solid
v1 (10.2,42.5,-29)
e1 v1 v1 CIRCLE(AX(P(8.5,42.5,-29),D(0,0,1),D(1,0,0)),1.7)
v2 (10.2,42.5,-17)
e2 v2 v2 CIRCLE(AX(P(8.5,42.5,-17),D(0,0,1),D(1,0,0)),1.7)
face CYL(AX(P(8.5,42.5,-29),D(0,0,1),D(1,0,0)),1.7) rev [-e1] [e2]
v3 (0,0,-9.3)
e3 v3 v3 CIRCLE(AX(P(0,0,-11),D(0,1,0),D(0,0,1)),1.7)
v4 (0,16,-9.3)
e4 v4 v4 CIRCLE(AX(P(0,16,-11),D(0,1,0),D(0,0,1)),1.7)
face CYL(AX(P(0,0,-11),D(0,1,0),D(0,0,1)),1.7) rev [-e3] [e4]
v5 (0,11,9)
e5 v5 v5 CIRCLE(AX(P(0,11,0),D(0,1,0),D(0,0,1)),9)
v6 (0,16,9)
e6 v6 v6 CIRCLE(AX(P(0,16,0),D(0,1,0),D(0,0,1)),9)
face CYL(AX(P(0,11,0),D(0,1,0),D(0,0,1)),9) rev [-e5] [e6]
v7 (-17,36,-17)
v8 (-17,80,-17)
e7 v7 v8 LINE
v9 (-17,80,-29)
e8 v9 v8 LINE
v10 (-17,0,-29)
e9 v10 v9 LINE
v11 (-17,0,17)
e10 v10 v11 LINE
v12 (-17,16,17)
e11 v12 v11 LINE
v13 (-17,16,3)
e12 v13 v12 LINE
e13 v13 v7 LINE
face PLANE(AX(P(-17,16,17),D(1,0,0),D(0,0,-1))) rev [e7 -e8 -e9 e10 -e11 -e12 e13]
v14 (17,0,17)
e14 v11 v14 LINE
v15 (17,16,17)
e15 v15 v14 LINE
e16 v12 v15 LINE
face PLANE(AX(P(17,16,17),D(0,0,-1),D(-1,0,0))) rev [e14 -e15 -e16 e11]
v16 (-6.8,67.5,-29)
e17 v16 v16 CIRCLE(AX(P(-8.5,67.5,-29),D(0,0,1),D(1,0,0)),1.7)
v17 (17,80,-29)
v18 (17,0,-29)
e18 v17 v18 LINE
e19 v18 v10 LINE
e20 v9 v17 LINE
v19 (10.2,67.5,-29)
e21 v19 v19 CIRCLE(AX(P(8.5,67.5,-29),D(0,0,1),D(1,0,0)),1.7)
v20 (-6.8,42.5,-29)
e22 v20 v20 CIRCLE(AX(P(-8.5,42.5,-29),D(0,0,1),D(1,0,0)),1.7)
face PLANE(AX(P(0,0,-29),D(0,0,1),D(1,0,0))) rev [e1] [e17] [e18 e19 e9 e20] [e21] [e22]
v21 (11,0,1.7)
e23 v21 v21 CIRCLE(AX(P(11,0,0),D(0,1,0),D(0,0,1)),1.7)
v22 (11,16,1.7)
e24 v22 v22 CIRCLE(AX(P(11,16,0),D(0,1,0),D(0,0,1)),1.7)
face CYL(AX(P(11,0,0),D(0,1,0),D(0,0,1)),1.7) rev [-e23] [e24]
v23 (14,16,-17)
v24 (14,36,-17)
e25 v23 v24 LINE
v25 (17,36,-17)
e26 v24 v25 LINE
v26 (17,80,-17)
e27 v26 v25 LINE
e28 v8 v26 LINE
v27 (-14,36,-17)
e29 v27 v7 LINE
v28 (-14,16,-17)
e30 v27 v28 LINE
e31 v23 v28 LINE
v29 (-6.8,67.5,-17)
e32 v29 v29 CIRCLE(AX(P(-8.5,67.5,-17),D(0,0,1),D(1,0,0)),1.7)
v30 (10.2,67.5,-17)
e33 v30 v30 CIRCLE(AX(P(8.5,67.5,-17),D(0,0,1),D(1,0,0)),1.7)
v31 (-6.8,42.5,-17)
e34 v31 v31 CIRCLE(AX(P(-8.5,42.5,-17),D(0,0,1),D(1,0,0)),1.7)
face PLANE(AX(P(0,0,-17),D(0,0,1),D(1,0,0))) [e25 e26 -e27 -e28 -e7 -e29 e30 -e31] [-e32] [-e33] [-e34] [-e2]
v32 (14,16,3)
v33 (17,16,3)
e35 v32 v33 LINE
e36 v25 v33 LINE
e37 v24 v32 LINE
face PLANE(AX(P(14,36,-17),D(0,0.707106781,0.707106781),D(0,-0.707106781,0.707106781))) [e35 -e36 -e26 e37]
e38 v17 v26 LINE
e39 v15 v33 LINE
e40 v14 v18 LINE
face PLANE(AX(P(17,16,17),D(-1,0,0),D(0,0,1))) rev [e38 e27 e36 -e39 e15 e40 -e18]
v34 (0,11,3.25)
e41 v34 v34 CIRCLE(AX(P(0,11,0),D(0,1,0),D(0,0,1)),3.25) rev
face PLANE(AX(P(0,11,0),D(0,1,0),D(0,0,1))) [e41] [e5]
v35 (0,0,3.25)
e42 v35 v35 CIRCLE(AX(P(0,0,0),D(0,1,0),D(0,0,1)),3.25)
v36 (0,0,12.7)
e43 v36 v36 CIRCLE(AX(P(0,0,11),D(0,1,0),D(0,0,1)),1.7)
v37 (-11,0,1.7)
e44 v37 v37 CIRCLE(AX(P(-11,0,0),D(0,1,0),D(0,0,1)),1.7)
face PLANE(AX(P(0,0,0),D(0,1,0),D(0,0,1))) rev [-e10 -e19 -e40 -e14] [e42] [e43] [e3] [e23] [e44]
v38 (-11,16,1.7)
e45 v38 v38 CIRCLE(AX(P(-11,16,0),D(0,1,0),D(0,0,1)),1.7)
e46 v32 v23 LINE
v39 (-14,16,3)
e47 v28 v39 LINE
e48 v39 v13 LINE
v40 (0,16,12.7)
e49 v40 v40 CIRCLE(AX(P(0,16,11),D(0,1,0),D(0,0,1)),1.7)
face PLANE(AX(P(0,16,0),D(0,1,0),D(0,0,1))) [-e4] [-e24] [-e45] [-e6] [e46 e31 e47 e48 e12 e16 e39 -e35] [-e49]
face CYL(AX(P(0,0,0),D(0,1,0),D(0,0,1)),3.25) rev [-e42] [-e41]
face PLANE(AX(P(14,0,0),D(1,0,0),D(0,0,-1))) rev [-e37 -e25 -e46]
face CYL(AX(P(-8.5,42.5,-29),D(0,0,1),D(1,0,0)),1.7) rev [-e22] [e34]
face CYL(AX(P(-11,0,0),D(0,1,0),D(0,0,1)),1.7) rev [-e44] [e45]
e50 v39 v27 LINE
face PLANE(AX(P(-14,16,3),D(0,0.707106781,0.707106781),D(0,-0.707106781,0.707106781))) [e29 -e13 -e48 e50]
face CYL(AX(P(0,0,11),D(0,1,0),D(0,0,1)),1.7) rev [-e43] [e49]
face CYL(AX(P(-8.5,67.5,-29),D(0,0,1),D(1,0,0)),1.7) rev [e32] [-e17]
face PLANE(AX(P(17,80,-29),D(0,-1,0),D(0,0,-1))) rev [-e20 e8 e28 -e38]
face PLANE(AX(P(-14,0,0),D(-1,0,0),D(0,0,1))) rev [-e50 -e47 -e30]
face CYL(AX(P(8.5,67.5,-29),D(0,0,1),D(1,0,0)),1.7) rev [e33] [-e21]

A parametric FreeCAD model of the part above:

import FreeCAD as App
import Part
import Sketcher


def add_polygon(sketch, points):
    """Adds a closed chain of lines whose ends are joined by coincident constraints."""
    first, n = sketch.GeometryCount, len(points)
    for a, b in zip(points, points[1:] + points[:1]):
        sketch.addGeometry(Part.LineSegment(App.Vector(*a, 0), App.Vector(*b, 0)), False)
    for i in range(n):
        sketch.addConstraint(Sketcher.Constraint("Coincident", first + i, 2, first + (i + 1) % n, 1))

doc = App.newDocument("Part")
body = doc.addObject("PartDesign::Body", "Body")

# Sketch on XZ plane
sketch1 = body.newObject("Sketcher::SketchObject", "Sketch")
sketch1.AttachmentSupport = (doc.getObject("XZ_Plane"), [""])
sketch1.MapMode = "FlatFace"
add_polygon(sketch1, [(-17, -17), (-17, 17), (17, 17), (17, -17)])  # lines 0-3
sketch1.addConstraint(Sketcher.Constraint("Vertical", 0))
sketch1.addConstraint(Sketcher.Constraint("Horizontal", 1))
sketch1.addConstraint(Sketcher.Constraint("Vertical", 2))
sketch1.addConstraint(Sketcher.Constraint("Horizontal", 3))
sketch1.addConstraint(Sketcher.Constraint("Symmetric", 0, 2, 2, 2, -1, 1))
sketch1.addConstraint(Sketcher.Constraint("Equal", 3, 0))
sketch1.addConstraint(Sketcher.Constraint("DistanceX", 1, 1, 1, 2, 34.0))
pad1 = body.newObject("PartDesign::Pad", "Pad")
pad1.Profile = sketch1
pad1.Length = 16
pad1.Reversed = True

# Sketch on XY plane
sketch2 = body.newObject("Sketcher::SketchObject", "Sketch001")
sketch2.AttachmentSupport = (doc.getObject("XY_Plane"), [""])
sketch2.MapMode = "FlatFace"
sketch2.AttachmentOffset = App.Placement(App.Vector(0, 0, -17), App.Rotation())
add_polygon(sketch2, [(17, 80), (17, 0), (-17, 0), (-17, 80)])  # lines 0-3
sketch2.addConstraint(Sketcher.Constraint("Vertical", 0))
sketch2.addConstraint(Sketcher.Constraint("Horizontal", 1))
sketch2.addConstraint(Sketcher.Constraint("Vertical", 2))
sketch2.addConstraint(Sketcher.Constraint("Horizontal", 3))
sketch2.addConstraint(Sketcher.Constraint("Symmetric", 0, 2, 1, 2, -1, 1))
sketch2.addConstraint(Sketcher.Constraint("DistanceX", 1, 2, 1, 1, 34.0))
sketch2.addConstraint(Sketcher.Constraint("DistanceY", 0, 2, 0, 1, 80.0))
pad2 = body.newObject("PartDesign::Pad", "Pad001")
pad2.Profile = sketch2
pad2.Length = 12
pad2.Reversed = True

# Sketch on XZ plane
sketch3 = body.newObject("Sketcher::SketchObject", "Sketch002")
sketch3.AttachmentSupport = (doc.getObject("XZ_Plane"), [""])
sketch3.MapMode = "FlatFace"
sketch3.AttachmentOffset = App.Placement(App.Vector(0, 0, -16), App.Rotation())
sketch3.addGeometry(Part.Circle(App.Vector(0, 0, 0), App.Vector(0, 0, 1), 3.2), False)
sketch3.addGeometry(Part.Circle(App.Vector(0, -11, 0), App.Vector(0, 0, 1), 1.7), False)
sketch3.addGeometry(Part.Circle(App.Vector(11, 0, 0), App.Vector(0, 0, 1), 1.7), False)
sketch3.addGeometry(Part.Circle(App.Vector(0, 11, 0), App.Vector(0, 0, 1), 1.7), False)
sketch3.addGeometry(Part.Circle(App.Vector(-11, 0, 0), App.Vector(0, 0, 1), 1.7), False)
sketch3.addConstraint(Sketcher.Constraint("Coincident", 0, 3, -1, 1))
sketch3.addConstraint(Sketcher.Constraint("Equal", 1, 2))
sketch3.addConstraint(Sketcher.Constraint("Equal", 2, 3))
sketch3.addConstraint(Sketcher.Constraint("Equal", 3, 4))
sketch3.addConstraint(Sketcher.Constraint("Symmetric", 1, 3, 3, 3, -1, 1))
sketch3.addConstraint(Sketcher.Constraint("Symmetric", 2, 3, 4, 3, -1, 1))
sketch3.addConstraint(Sketcher.Constraint("PointOnObject", 1, 3, -2))
sketch3.addConstraint(Sketcher.Constraint("PointOnObject", 2, 3, -1))
sketch3.addConstraint(Sketcher.Constraint("Diameter", 0, 6.5))
sketch3.addConstraint(Sketcher.Constraint("Diameter", 1, 3.4))
sketch3.addConstraint(Sketcher.Constraint("DistanceY", 1, 3, -1, 1, 11.0))
sketch3.addConstraint(Sketcher.Constraint("DistanceX", -1, 1, 2, 3, 11.0))
pocket1 = body.newObject("PartDesign::Pocket", "Pocket")
pocket1.Profile = sketch3
pocket1.Type = "ThroughAll"
pocket1.Reversed = True

# Sketch on XZ plane
sketch4 = body.newObject("Sketcher::SketchObject", "Sketch003")
sketch4.AttachmentSupport = (doc.getObject("XZ_Plane"), [""])
sketch4.MapMode = "FlatFace"
sketch4.AttachmentOffset = App.Placement(App.Vector(0, 0, -16), App.Rotation())
sketch4.addGeometry(Part.Circle(App.Vector(0, 0, 0), App.Vector(0, 0, 1), 9), False)
sketch4.addConstraint(Sketcher.Constraint("Coincident", 0, 3, -1, 1))
sketch4.addConstraint(Sketcher.Constraint("Diameter", 0, 18.0))
pocket2 = body.newObject("PartDesign::Pocket", "Pocket001")
pocket2.Profile = sketch4
pocket2.Length = 5
pocket2.Reversed = True

# Sketch on XY plane
sketch5 = body.newObject("Sketcher::SketchObject", "Sketch004")
sketch5.AttachmentSupport = (doc.getObject("XY_Plane"), [""])
sketch5.MapMode = "FlatFace"
sketch5.AttachmentOffset = App.Placement(App.Vector(0, 0, -17), App.Rotation())
sketch5.addGeometry(Part.Circle(App.Vector(-8.5, 67.5, 0), App.Vector(0, 0, 1), 1.7), False)
sketch5.addGeometry(Part.Circle(App.Vector(8.5, 67.5, 0), App.Vector(0, 0, 1), 1.7), False)
sketch5.addGeometry(Part.Circle(App.Vector(8.5, 42.5, 0), App.Vector(0, 0, 1), 1.7), False)
sketch5.addGeometry(Part.Circle(App.Vector(-8.5, 42.5, 0), App.Vector(0, 0, 1), 1.7), False)
sketch5.addConstraint(Sketcher.Constraint("Equal", 0, 1))
sketch5.addConstraint(Sketcher.Constraint("Equal", 1, 2))
sketch5.addConstraint(Sketcher.Constraint("Equal", 2, 3))
sketch5.addConstraint(Sketcher.Constraint("Symmetric", 0, 3, 1, 3, -2))
sketch5.addConstraint(Sketcher.Constraint("Symmetric", 2, 3, 3, 3, -2))
sketch5.addConstraint(Sketcher.Constraint("Vertical", 1, 3, 2, 3))
sketch5.addConstraint(Sketcher.Constraint("Diameter", 0, 3.4))
sketch5.addConstraint(Sketcher.Constraint("DistanceX", 0, 3, 1, 3, 17.0))
sketch5.addConstraint(Sketcher.Constraint("DistanceY", 2, 3, 1, 3, 25.0))
sketch5.addConstraint(Sketcher.Constraint("DistanceY", -1, 1, 0, 3, 67.5))
pocket3 = body.newObject("PartDesign::Pocket", "Pocket002")
pocket3.Profile = sketch5
pocket3.Type = "ThroughAll"

# Sketch on YZ plane
sketch6 = body.newObject("Sketcher::SketchObject", "Sketch005")
sketch6.AttachmentSupport = (doc.getObject("YZ_Plane"), [""])
sketch6.MapMode = "FlatFace"
sketch6.AttachmentOffset = App.Placement(App.Vector(0, 0, 17), App.Rotation())
add_polygon(sketch6, [(16, 3), (16, -17), (36, -17)])  # lines 0-2
sketch6.addConstraint(Sketcher.Constraint("Vertical", 0))
sketch6.addConstraint(Sketcher.Constraint("Horizontal", 1))
sketch6.addConstraint(Sketcher.Constraint("Equal", 1, 0))
sketch6.addConstraint(Sketcher.Constraint("DistanceX", 1, 1, 1, 2, 20.0))
sketch6.addConstraint(Sketcher.Constraint("DistanceX", -1, 1, 0, 2, 16.0))
sketch6.addConstraint(Sketcher.Constraint("DistanceY", 0, 2, -1, 1, 17.0))
pad3 = body.newObject("PartDesign::Pad", "Pad002")
pad3.Profile = sketch6
pad3.Length = 3
pad3.Reversed = True

# Sketch on YZ plane
sketch7 = body.newObject("Sketcher::SketchObject", "Sketch006")
sketch7.AttachmentSupport = (doc.getObject("YZ_Plane"), [""])
sketch7.MapMode = "FlatFace"
sketch7.AttachmentOffset = App.Placement(App.Vector(0, 0, -17), App.Rotation())
add_polygon(sketch7, [(36, -17), (16, -17), (16, 3)])  # lines 0-2
sketch7.addConstraint(Sketcher.Constraint("Horizontal", 0))
sketch7.addConstraint(Sketcher.Constraint("Vertical", 1))
sketch7.addConstraint(Sketcher.Constraint("Equal", 0, 1))
sketch7.addConstraint(Sketcher.Constraint("DistanceX", 0, 2, 0, 1, 20.0))
sketch7.addConstraint(Sketcher.Constraint("DistanceX", -1, 1, 0, 2, 16.0))
sketch7.addConstraint(Sketcher.Constraint("DistanceY", 0, 2, -1, 1, 17.0))
pad4 = body.newObject("PartDesign::Pad", "Pad003")
pad4.Profile = sketch7
pad4.Length = 3

doc.recompute()
